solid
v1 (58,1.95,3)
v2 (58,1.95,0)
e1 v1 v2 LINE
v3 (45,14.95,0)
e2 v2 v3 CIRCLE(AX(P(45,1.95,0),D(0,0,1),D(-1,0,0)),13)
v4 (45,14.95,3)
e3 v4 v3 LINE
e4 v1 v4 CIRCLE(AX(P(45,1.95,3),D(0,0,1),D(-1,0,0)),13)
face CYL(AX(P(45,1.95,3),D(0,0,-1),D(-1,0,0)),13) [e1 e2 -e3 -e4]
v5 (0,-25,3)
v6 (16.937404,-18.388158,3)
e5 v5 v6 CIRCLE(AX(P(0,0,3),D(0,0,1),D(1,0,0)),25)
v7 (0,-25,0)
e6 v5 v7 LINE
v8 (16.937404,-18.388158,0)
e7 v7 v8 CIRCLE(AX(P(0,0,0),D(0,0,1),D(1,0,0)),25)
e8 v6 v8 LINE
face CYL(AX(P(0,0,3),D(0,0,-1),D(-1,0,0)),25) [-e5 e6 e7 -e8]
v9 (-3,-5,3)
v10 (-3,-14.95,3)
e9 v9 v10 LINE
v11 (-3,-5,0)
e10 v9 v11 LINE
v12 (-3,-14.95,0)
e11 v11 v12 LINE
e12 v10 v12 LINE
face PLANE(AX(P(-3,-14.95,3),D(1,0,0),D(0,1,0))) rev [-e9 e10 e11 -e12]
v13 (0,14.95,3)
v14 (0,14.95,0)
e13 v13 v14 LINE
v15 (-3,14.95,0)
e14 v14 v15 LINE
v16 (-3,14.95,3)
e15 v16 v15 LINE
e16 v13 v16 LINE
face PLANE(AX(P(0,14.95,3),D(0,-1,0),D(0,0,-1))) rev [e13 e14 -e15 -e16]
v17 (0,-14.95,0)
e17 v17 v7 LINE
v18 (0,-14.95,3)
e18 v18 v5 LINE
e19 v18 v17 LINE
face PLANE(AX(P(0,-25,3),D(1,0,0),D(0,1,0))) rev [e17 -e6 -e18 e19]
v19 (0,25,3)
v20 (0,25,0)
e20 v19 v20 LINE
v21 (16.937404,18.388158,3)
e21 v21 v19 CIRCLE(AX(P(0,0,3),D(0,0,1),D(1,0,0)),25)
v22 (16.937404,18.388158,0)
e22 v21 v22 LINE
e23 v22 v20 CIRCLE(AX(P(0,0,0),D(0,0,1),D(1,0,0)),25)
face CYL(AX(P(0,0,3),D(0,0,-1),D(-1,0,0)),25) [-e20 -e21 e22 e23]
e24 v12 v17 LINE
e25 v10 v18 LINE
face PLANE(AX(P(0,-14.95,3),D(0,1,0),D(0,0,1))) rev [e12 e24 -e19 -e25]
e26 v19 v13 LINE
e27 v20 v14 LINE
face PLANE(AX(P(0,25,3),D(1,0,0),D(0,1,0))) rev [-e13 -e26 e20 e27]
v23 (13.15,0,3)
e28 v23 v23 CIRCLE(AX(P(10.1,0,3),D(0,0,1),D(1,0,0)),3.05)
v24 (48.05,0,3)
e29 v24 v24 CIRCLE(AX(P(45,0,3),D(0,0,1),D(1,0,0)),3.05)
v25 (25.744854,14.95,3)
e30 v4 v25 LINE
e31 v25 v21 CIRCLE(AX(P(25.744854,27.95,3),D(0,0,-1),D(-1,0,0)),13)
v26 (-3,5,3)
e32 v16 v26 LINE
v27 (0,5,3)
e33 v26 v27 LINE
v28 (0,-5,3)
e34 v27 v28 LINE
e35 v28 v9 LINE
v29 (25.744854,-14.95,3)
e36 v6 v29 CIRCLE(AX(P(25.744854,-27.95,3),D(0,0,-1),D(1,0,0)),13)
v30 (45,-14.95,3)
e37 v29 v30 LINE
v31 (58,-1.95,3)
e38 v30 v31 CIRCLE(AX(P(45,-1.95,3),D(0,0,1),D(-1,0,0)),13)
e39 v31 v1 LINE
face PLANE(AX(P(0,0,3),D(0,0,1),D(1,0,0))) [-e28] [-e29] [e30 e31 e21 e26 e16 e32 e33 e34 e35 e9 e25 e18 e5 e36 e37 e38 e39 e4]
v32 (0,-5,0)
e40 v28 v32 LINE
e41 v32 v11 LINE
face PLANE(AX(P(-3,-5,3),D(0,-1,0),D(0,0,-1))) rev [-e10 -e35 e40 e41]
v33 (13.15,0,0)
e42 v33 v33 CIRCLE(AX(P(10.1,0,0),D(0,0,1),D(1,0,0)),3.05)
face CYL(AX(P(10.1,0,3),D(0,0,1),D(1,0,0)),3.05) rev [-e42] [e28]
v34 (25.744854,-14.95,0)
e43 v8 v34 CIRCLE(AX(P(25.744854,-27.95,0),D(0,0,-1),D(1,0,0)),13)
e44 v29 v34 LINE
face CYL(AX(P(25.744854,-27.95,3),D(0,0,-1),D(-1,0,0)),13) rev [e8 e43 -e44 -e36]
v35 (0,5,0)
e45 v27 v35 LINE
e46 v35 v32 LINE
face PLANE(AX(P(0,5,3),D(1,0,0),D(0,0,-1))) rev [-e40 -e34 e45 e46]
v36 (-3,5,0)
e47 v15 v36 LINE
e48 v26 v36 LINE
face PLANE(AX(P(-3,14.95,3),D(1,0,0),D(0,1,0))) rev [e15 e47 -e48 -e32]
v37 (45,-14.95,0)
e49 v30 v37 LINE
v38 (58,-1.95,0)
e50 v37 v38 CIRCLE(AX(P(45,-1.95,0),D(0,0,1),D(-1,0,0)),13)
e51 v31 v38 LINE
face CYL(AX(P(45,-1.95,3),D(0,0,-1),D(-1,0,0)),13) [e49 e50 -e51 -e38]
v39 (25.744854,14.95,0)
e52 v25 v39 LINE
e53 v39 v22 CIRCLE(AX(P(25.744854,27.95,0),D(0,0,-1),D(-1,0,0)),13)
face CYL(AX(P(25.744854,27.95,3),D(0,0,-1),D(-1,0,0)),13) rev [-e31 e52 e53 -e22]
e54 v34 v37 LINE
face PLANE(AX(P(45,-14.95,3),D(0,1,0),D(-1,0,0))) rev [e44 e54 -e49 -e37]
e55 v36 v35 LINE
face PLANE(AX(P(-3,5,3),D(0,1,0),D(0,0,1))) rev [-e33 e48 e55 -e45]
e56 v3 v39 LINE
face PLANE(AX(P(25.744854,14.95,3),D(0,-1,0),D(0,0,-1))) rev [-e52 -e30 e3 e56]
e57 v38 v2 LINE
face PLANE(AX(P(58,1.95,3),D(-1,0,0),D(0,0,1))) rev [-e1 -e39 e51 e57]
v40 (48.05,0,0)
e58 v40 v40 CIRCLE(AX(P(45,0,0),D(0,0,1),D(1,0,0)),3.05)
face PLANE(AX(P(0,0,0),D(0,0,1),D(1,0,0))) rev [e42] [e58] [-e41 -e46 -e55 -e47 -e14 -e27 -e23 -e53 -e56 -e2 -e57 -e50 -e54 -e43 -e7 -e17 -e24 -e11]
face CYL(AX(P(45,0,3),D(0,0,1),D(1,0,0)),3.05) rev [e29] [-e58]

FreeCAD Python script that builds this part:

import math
import FreeCAD as App
import Part
import Sketcher
from FreeCAD import Vector

doc = App.newDocument("Part")
params = doc.addObject("Spreadsheet::Sheet", "Params")
for row, (alias, value) in enumerate([
    ("sketch1_radius", "25 mm"),
    ("sketch1_radius2", "13 mm"),
    ("sketch1_width", "3 mm"),
    ("sketch1_height", "10 mm"),
    ("sketch1_height2", "3.9 mm"),
    ("pad1_length", "3 mm"),
    ("sketch2_diameter", "6.1 mm"),
    ("hole_diameter", "6.1 mm"),
    ("hole_depth", "10 mm"),
], start=1):
    params.set(f"A{row}", alias)
    params.set(f"B{row}", "=" + value)
    params.setAlias(f"B{row}", alias)

body = doc.addObject("PartDesign::Body", "Body")

sketch1 = body.newObject("Sketcher::SketchObject", "Sketch")
sketch1.AttachmentSupport = (doc.getObject("XY_Plane"), [""])
sketch1.MapMode = "FlatFace"
sketch1.addGeometry(Part.LineSegment(Vector(0, 25, 0), Vector(0, 14.95, 0)), False)
sketch1.addGeometry(Part.LineSegment(Vector(0, 14.95, 0), Vector(-3, 14.95, 0)), False)
sketch1.addGeometry(Part.LineSegment(Vector(-3, 14.95, 0), Vector(-3, 5, 0)), False)
sketch1.addGeometry(Part.LineSegment(Vector(-3, 5, 0), Vector(0, 5, 0)), False)
sketch1.addGeometry(Part.LineSegment(Vector(0, 5, 0), Vector(0, -5, 0)), False)
sketch1.addGeometry(Part.LineSegment(Vector(0, -5, 0), Vector(-3, -5, 0)), False)
sketch1.addGeometry(Part.LineSegment(Vector(-3, -5, 0), Vector(-3, -14.95, 0)), False)
sketch1.addGeometry(Part.LineSegment(Vector(-3, -14.95, 0), Vector(0, -14.95, 0)), False)
sketch1.addGeometry(Part.LineSegment(Vector(0, -14.95, 0), Vector(0, -25, 0)), False)
sketch1.addGeometry(Part.ArcOfCircle(Part.Circle(Vector(0, 0, 0), Vector(0, 0, 1), 25), math.radians(-90), math.radians(-47.351708)), False)
sketch1.addGeometry(Part.ArcOfCircle(Part.Circle(Vector(25.744854, -27.95, 0), Vector(0, 0, 1), 13), math.radians(90), math.radians(132.648292)), False)
sketch1.addGeometry(Part.LineSegment(Vector(25.744854, -14.95, 0), Vector(45, -14.95, 0)), False)
sketch1.addGeometry(Part.ArcOfCircle(Part.Circle(Vector(45, -1.95, 0), Vector(0, 0, 1), 13), math.radians(-90), math.radians(0)), False)
sketch1.addGeometry(Part.LineSegment(Vector(58, -1.95, 0), Vector(58, 1.95, 0)), False)
sketch1.addGeometry(Part.ArcOfCircle(Part.Circle(Vector(45, 1.95, 0), Vector(0, 0, 1), 13), math.radians(0), math.radians(90)), False)
sketch1.addGeometry(Part.LineSegment(Vector(45, 14.95, 0), Vector(25.744854, 14.95, 0)), False)
sketch1.addGeometry(Part.ArcOfCircle(Part.Circle(Vector(25.744854, 27.95, 0), Vector(0, 0, 1), 13), math.radians(-132.648292), math.radians(-90)), False)
sketch1.addGeometry(Part.ArcOfCircle(Part.Circle(Vector(0, 0, 0), Vector(0, 0, 1), 25), math.radians(47.351708), math.radians(90)), False)
sketch1.addConstraint(Sketcher.Constraint("Coincident", 0, 2, 1, 1))
sketch1.addConstraint(Sketcher.Constraint("Coincident", 1, 2, 2, 1))
sketch1.addConstraint(Sketcher.Constraint("Coincident", 2, 2, 3, 1))
sketch1.addConstraint(Sketcher.Constraint("Coincident", 3, 2, 4, 1))
sketch1.addConstraint(Sketcher.Constraint("Coincident", 4, 2, 5, 1))
sketch1.addConstraint(Sketcher.Constraint("Coincident", 5, 2, 6, 1))
sketch1.addConstraint(Sketcher.Constraint("Coincident", 6, 2, 7, 1))
sketch1.addConstraint(Sketcher.Constraint("Coincident", 7, 2, 8, 1))
sketch1.addConstraint(Sketcher.Constraint("Coincident", 8, 2, 9, 1))
sketch1.addConstraint(Sketcher.Constraint("Tangent", 9, 2, 10, 2))
sketch1.addConstraint(Sketcher.Constraint("Tangent", 10, 1, 11, 1))
sketch1.addConstraint(Sketcher.Constraint("Tangent", 11, 2, 12, 1))
sketch1.addConstraint(Sketcher.Constraint("Tangent", 12, 2, 13, 1))
sketch1.addConstraint(Sketcher.Constraint("Tangent", 13, 2, 14, 1))
sketch1.addConstraint(Sketcher.Constraint("Tangent", 14, 2, 15, 1))
sketch1.addConstraint(Sketcher.Constraint("Tangent", 15, 2, 16, 2))
sketch1.addConstraint(Sketcher.Constraint("Tangent", 16, 1, 17, 1))
sketch1.addConstraint(Sketcher.Constraint("Coincident", 17, 2, 0, 1))
sketch1.addConstraint(Sketcher.Constraint("Vertical", 0))
sketch1.addConstraint(Sketcher.Constraint("Horizontal", 1))
sketch1.addConstraint(Sketcher.Constraint("Vertical", 2))
sketch1.addConstraint(Sketcher.Constraint("Horizontal", 3))
sketch1.addConstraint(Sketcher.Constraint("Vertical", 4))
sketch1.addConstraint(Sketcher.Constraint("Horizontal", 5))
sketch1.addConstraint(Sketcher.Constraint("Vertical", 6))
sketch1.addConstraint(Sketcher.Constraint("Horizontal", 7))
sketch1.addConstraint(Sketcher.Constraint("Vertical", 8))
sketch1.addConstraint(Sketcher.Constraint("Horizontal", 11))
sketch1.addConstraint(Sketcher.Constraint("Vertical", 13))
sketch1.addConstraint(Sketcher.Constraint("Horizontal", 15))
sketch1.addConstraint(Sketcher.Constraint("Coincident", 9, 3, -1, 1))
sketch1.addConstraint(Sketcher.Constraint("Coincident", 17, 3, -1, 1))
sketch1.addConstraint(Sketcher.Constraint("Equal", 10, 12))
sketch1.addConstraint(Sketcher.Constraint("Equal", 12, 14))
sketch1.addConstraint(Sketcher.Constraint("Equal", 14, 16))
sketch1.addConstraint(Sketcher.Constraint("Equal", 9, 17))
sketch1.addConstraint(Sketcher.Constraint("Symmetric", 3, 2, 4, 2, -1, 1))
sketch1.addConstraint(Sketcher.Constraint("Symmetric", 0, 2, 7, 2, -1, 1))
sketch1.addConstraint(Sketcher.Constraint("PointOnObject", 0, 2, -2))
sketch1.addConstraint(Sketcher.Constraint("Horizontal", 7, 2, 10, 1))
sketch1.addConstraint(Sketcher.Constraint("Horizontal", 1, 2, 14, 2))
sketch1.addConstraint(Sketcher.Constraint("Vertical", 2, 2, 5, 2))
sketch1.addConstraint(Sketcher.Constraint("Radius", 9, 25.0))
sketch1.addConstraint(Sketcher.Constraint("Radius", 10, 13.0))
sketch1.addConstraint(Sketcher.Constraint("DistanceX", 1, 2, 1, 1, 3.0))
sketch1.addConstraint(Sketcher.Constraint("DistanceY", 4, 2, 4, 1, 10.0))
sketch1.addConstraint(Sketcher.Constraint("DistanceY", 13, 1, 13, 2, 3.9))
sketch1.addConstraint(Sketcher.Constraint("DistanceX", -1, 1, 12, 3, 45.0))
sketch1.setExpression("Constraints[42]", "Params.sketch1_radius")
sketch1.setExpression("Constraints[43]", "Params.sketch1_radius2")
sketch1.setExpression("Constraints[44]", "Params.sketch1_width")
sketch1.setExpression("Constraints[45]", "Params.sketch1_height")
sketch1.setExpression("Constraints[46]", "Params.sketch1_height2")
pad1 = body.newObject("PartDesign::Pad", "Pad")
pad1.Profile = sketch1
pad1.setExpression("Length", "Params.pad1_length")

sketch2 = body.newObject("Sketcher::SketchObject", "Sketch001")
sketch2.AttachmentSupport = (doc.getObject("XY_Plane"), [""])
sketch2.MapMode = "FlatFace"
sketch2.AttachmentOffset = App.Placement(Vector(0, 0, 3), App.Rotation())
sketch2.addGeometry(Part.Circle(Vector(10.1, 0, 0), Vector(0, 0, 1), 3.05), False)
sketch2.addGeometry(Part.Circle(Vector(45, 0, 0), Vector(0, 0, 1), 3.05), False)
sketch2.addConstraint(Sketcher.Constraint("Equal", 0, 1))
sketch2.addConstraint(Sketcher.Constraint("PointOnObject", 0, 3, -1))
sketch2.addConstraint(Sketcher.Constraint("PointOnObject", 1, 3, -1))
sketch2.addConstraint(Sketcher.Constraint("Diameter", 0, 6.1))
sketch2.addConstraint(Sketcher.Constraint("DistanceX", -1, 1, 1, 3, 45.0))
sketch2.addConstraint(Sketcher.Constraint("DistanceX", -1, 1, 0, 3, 10.1))
sketch2.setExpression("Constraints[3]", "Params.sketch2_diameter")
doc.recompute()
hole = body.newObject("PartDesign::Hole", "Hole")
hole.Profile = sketch2
hole.ThreadType = "None"
hole.setExpression("Diameter", "Params.hole_diameter")
hole.DepthType = "Dimension"
hole.setExpression("Depth", "Params.hole_depth")
hole.DrillPoint = "Angled"
hole.DrillPointAngle = 118

doc.recompute()
